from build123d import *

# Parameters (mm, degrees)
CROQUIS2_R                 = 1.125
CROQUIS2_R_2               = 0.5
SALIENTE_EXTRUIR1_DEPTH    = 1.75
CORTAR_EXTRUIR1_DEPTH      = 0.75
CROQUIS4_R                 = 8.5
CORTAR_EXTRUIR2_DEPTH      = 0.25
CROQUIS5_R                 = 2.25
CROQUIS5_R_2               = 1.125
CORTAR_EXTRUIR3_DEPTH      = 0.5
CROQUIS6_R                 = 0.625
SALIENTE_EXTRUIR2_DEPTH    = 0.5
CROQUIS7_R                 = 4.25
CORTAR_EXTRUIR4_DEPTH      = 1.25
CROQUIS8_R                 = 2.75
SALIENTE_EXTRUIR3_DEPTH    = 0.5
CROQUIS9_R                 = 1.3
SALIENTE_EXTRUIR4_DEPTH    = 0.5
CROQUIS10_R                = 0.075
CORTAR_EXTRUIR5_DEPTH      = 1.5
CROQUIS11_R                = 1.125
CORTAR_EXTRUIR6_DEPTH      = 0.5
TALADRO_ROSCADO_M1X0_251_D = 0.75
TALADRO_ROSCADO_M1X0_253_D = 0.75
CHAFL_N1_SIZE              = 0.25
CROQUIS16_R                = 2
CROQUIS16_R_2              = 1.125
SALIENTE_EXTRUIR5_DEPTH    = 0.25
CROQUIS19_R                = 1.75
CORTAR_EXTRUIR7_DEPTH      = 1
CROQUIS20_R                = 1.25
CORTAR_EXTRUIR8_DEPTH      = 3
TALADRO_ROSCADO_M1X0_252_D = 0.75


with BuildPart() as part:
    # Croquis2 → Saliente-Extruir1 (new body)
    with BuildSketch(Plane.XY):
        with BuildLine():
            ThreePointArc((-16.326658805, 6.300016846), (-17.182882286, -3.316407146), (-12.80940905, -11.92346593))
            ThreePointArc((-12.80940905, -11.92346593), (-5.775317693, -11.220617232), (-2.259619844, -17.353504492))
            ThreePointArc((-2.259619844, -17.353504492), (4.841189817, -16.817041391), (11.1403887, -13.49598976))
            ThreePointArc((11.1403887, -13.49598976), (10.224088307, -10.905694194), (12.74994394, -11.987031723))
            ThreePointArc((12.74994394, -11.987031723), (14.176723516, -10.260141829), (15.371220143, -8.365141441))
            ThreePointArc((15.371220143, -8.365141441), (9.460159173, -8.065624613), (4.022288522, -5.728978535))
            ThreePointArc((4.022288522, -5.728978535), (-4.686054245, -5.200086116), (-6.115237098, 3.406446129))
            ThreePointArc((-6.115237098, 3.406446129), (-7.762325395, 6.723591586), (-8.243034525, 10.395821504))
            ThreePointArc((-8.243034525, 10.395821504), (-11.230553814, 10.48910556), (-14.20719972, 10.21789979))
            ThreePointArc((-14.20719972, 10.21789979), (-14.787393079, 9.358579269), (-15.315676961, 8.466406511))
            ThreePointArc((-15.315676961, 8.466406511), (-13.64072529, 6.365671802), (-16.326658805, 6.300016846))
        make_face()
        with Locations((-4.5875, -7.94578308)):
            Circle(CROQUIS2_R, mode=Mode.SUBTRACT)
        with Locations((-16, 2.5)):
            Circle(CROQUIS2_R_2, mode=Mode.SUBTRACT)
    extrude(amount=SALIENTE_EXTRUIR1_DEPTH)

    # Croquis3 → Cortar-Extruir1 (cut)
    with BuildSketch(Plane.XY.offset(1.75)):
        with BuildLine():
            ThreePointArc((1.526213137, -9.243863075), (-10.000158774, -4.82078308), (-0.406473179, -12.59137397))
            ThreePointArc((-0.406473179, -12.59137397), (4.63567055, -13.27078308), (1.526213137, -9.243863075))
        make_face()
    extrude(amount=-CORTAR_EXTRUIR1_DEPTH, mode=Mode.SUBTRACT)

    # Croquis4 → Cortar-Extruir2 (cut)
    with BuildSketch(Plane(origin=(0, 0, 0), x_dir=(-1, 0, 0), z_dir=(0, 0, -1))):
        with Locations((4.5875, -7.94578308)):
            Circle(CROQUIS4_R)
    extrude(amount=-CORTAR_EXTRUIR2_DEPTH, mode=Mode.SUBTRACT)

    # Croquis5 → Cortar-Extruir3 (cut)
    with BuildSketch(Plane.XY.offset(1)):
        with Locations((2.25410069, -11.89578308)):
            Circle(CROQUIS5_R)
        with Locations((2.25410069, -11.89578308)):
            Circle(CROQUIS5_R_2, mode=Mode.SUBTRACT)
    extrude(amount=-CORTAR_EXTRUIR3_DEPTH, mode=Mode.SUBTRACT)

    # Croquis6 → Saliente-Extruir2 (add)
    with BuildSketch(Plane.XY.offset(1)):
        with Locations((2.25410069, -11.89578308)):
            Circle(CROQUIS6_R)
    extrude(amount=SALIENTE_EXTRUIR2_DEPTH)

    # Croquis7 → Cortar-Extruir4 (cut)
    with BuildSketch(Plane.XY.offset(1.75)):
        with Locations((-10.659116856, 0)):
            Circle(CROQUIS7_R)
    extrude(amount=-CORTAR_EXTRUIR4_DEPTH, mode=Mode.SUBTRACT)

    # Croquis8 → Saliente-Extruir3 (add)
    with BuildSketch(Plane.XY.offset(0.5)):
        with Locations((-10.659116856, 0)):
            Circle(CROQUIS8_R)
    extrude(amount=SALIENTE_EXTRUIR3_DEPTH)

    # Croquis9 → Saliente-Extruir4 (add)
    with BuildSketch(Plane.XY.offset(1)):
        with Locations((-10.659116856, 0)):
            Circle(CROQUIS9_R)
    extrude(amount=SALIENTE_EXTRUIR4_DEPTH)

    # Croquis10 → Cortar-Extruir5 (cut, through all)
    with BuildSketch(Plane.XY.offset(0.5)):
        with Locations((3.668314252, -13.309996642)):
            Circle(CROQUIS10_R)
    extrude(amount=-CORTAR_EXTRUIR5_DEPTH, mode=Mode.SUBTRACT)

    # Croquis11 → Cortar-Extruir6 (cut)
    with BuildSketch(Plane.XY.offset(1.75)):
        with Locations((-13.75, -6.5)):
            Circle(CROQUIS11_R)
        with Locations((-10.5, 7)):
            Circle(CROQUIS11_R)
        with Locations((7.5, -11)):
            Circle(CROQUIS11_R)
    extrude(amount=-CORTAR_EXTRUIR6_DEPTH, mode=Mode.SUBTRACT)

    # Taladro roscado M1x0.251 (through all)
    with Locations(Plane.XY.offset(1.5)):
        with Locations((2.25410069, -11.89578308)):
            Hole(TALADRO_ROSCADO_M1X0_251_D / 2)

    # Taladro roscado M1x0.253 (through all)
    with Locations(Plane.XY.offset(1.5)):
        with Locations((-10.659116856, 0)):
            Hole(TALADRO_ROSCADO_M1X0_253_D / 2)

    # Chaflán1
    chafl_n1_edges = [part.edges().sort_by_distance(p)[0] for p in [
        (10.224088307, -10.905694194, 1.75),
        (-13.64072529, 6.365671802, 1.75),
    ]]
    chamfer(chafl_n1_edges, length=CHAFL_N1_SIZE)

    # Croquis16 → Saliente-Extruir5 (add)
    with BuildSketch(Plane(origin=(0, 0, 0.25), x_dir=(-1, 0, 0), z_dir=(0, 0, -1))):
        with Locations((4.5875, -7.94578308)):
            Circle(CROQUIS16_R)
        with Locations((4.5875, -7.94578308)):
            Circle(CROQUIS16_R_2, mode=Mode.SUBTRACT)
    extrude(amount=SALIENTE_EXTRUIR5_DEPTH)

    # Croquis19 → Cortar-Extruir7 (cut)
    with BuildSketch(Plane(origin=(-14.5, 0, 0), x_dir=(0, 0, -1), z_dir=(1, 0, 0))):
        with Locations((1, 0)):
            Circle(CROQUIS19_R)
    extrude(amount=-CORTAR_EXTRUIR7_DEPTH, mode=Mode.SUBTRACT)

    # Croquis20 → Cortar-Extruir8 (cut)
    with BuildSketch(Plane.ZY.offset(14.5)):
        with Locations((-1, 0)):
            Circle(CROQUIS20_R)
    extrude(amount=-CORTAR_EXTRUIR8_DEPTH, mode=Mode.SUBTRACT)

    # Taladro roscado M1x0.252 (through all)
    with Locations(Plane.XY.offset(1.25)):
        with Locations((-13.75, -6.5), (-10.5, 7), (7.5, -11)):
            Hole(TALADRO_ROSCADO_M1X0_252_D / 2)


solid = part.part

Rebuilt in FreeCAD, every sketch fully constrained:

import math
import FreeCAD as App
import Part
import Sketcher

V = App.Vector


def edges_at(feature, points):
    """Names of the edges that pass closest to the given points."""
    edges = feature.Shape.Edges
    near = lambda p: min(range(len(edges)), key=lambda i: edges[i].distToShape(Part.Vertex(*p))[0])
    return sorted({f"Edge{near(p) + 1}" for p in points})

doc = App.newDocument("Part")
body = doc.addObject("PartDesign::Body", "Body")

# Sketch on XY plane
sketch1 = body.newObject("Sketcher::SketchObject", "Sketch")
sketch1.AttachmentSupport = (doc.getObject("XY_Plane"), [""])
sketch1.MapMode = "FlatFace"
sketch1.addGeometry(Part.ArcOfCircle(Part.Circle(V(0, 0, 0), V(0, 0, 1), 17.5), math.radians(159), math.radians(223)), False)
sketch1.addGeometry(Part.ArcOfCircle(Part.Circle(V(-8.8, -17, 0), V(0, 0, 1), 6.5), math.radians(-3), math.radians(129)), False)
sketch1.addGeometry(Part.ArcOfCircle(Part.Circle(V(0, 0, 0), V(0, 0, 1), 17.5), math.radians(-97), math.radians(-50)), False)
sketch1.addGeometry(Part.ArcOfCircle(Part.Circle(V(11.2, -12, 0), V(0, 0, 1), 1.5), math.radians(0), math.radians(266)), False)
sketch1.addGeometry(Part.ArcOfCircle(Part.Circle(V(0, 0, 0), V(0, 0, 1), 17.5), math.radians(-43.23), math.radians(-28.56)), False)
sketch1.addGeometry(Part.ArcOfCircle(Part.Circle(V(13.2, 8.2, 0), V(0, 0, 1), 16.7), math.radians(-123), math.radians(-83)), False)
sketch1.addGeometry(Part.ArcOfCircle(Part.Circle(V(0, 0, 0), V(0, 0, 1), 7), math.radians(151), math.radians(305)), False)
sketch1.addGeometry(Part.ArcOfCircle(Part.Circle(V(3, 10, 0), V(0, 0, 1), 11.2), math.radians(178), math.radians(216)), False)
sketch1.addGeometry(Part.ArcOfCircle(Part.Circle(V(-10.5, -14, 0), V(0, 0, 1), 24.5), math.radians(84.71), math.radians(98.7)), False)
sketch1.addGeometry(Part.ArcOfCircle(Part.Circle(V(0, 0, 0), V(0, 0, 1), 17.5), math.radians(144.28), math.radians(151.07)), False)
sketch1.addGeometry(Part.ArcOfCircle(Part.Circle(V(-15, 7, 0), V(0, 0, 1), 1.5), math.radians(-152), math.radians(102)), False)
sketch1.addGeometry(Part.Circle(V(-4.6, -7.9, 0), V(0, 0, 1), 1.1), False)
sketch1.addGeometry(Part.Circle(V(-16, 2.5, 0), V(0, 0, 1), 0.5), False)
sketch1.addConstraint(Sketcher.Constraint("Coincident", 0, 2, 1, 2))
sketch1.addConstraint(Sketcher.Constraint("Coincident", 1, 1, 2, 1))
sketch1.addConstraint(Sketcher.Constraint("Coincident", 2, 2, 3, 2))
sketch1.addConstraint(Sketcher.Constraint("Coincident", 3, 1, 4, 1))
sketch1.addConstraint(Sketcher.Constraint("Coincident", 4, 2, 5, 2))
sketch1.addConstraint(Sketcher.Constraint("Coincident", 5, 1, 6, 2))
sketch1.addConstraint(Sketcher.Constraint("Coincident", 6, 1, 7, 2))
sketch1.addConstraint(Sketcher.Constraint("Coincident", 7, 1, 8, 1))
sketch1.addConstraint(Sketcher.Constraint("Coincident", 8, 2, 9, 1))
sketch1.addConstraint(Sketcher.Constraint("Coincident", 9, 2, 10, 2))
sketch1.addConstraint(Sketcher.Constraint("Coincident", 10, 1, 0, 1))
sketch1.addConstraint(Sketcher.Constraint("Coincident", 0, 3, -1, 1))
sketch1.addConstraint(Sketcher.Constraint("Coincident", 2, 3, -1, 1))
sketch1.addConstraint(Sketcher.Constraint("Coincident", 4, 3, -1, 1))
sketch1.addConstraint(Sketcher.Constraint("Coincident", 6, 3, -1, 1))
sketch1.addConstraint(Sketcher.Constraint("Coincident", 9, 3, -1, 1))
sketch1.addConstraint(Sketcher.Constraint("Equal", 0, 2))
sketch1.addConstraint(Sketcher.Constraint("Equal", 2, 4))
sketch1.addConstraint(Sketcher.Constraint("Equal", 4, 9))
sketch1.addConstraint(Sketcher.Constraint("Equal", 3, 10))
sketch1.addConstraint(Sketcher.Constraint("Diameter", 12, 1.0))
sketch1.addConstraint(Sketcher.Constraint("Radius", 6, 7.0))
sketch1.addConstraint(Sketcher.Constraint("Radius", 0, 17.5))
sketch1.addConstraint(Sketcher.Constraint("Radius", 1, 6.5))
sketch1.addConstraint(Sketcher.Constraint("Radius", 3, 1.5))
sketch1.addConstraint(Sketcher.Constraint("Radius", 8, 24.5))
sketch1.addConstraint(Sketcher.Constraint("Diameter", 11, 2.25))
sketch1.addConstraint(Sketcher.Constraint("Radius", 5, 16.75))
sketch1.addConstraint(Sketcher.Constraint("Radius", 7, 11.25))
sketch1.addConstraint(Sketcher.Constraint("DistanceY", 1, 3, -1, 1, 17.0))
sketch1.addConstraint(Sketcher.Constraint("DistanceY", 3, 3, -1, 1, 12.0))
sketch1.addConstraint(Sketcher.Constraint("DistanceX", -1, 1, 7, 3, 3.0))
sketch1.addConstraint(Sketcher.Constraint("DistanceY", -1, 1, 7, 3, 10.0))
sketch1.addConstraint(Sketcher.Constraint("DistanceY", 8, 3, -1, 1, 14.0))
sketch1.addConstraint(Sketcher.Constraint("DistanceX", 10, 3, -1, 1, 15.0))
sketch1.addConstraint(Sketcher.Constraint("DistanceY", -1, 1, 10, 3, 7.0))
sketch1.addConstraint(Sketcher.Constraint("DistanceX", 12, 3, -1, 1, 16.0))
sketch1.addConstraint(Sketcher.Constraint("DistanceX", 1, 3, 3, 3, 20.0))
sketch1.addConstraint(Sketcher.Constraint("DistanceX", 3, 3, 5, 3, 2.0))
sketch1.addConstraint(Sketcher.Constraint("DistanceX", 8, 3, -1, 1, 10.5))
sketch1.addConstraint(Sketcher.Constraint("DistanceY", -1, 1, 12, 3, 2.5))
sketch1.addConstraint(Sketcher.Constraint("DistanceX", 1, 3, -1, 1, 8.75))
sketch1.addConstraint(Sketcher.Constraint("DistanceY", -1, 1, 5, 3, 8.25))
sketch1.addConstraint(Sketcher.Constraint("DistanceX", 11, 3, -1, 1, 4.5875))
sketch1.addConstraint(Sketcher.Constraint("DistanceY", 1, 1, 11, 3, 9.407721))
pad1 = body.newObject("PartDesign::Pad", "Pad")
pad1.Profile = sketch1
pad1.Length = 1.75

# Sketch on XY plane
sketch2 = body.newObject("Sketcher::SketchObject", "Sketch001")
sketch2.AttachmentSupport = (doc.getObject("XY_Plane"), [""])
sketch2.MapMode = "FlatFace"
sketch2.AttachmentOffset = App.Placement(V(0, 0, 1.75), App.Rotation())
sketch2.addGeometry(Part.ArcOfCircle(Part.Circle(V(-4.6, -7.9, 0), V(0, 0, 1), 6.2), math.radians(-12), math.radians(312)), False)
sketch2.addGeometry(Part.ArcOfCircle(Part.Circle(V(2.3, -11.9, 0), V(0, 0, 1), 2.8), math.radians(-165), math.radians(105)), False)
sketch2.addConstraint(Sketcher.Constraint("Coincident", 0, 1, 1, 2))
sketch2.addConstraint(Sketcher.Constraint("Coincident", 1, 1, 0, 2))
sketch2.addConstraint(Sketcher.Constraint("Radius", 0, 6.25))
sketch2.addConstraint(Sketcher.Constraint("Radius", 1, 2.75))
sketch2.addConstraint(Sketcher.Constraint("DistanceY", 1, 3, 0, 3, 3.95))
sketch2.addConstraint(Sketcher.Constraint("DistanceX", 0, 3, -1, 1, 4.5875))
sketch2.addConstraint(Sketcher.Constraint("DistanceX", -1, 1, 1, 3, 2.254101))
sketch2.addConstraint(Sketcher.Constraint("DistanceY", 0, 3, -1, 1, 7.945783))
pocket1 = body.newObject("PartDesign::Pocket", "Pocket")
pocket1.Profile = sketch2
pocket1.Length = 0.75

# Sketch on XY plane
sketch3 = body.newObject("Sketcher::SketchObject", "Sketch002")
sketch3.AttachmentSupport = (doc.getObject("XY_Plane"), [""])
sketch3.MapMode = "FlatFace"
sketch3.addGeometry(Part.Circle(V(-5, -8, 0), V(0, 0, 1), 8), False)
sketch3.addConstraint(Sketcher.Constraint("Diameter", 0, 17.0))
sketch3.addConstraint(Sketcher.Constraint("DistanceX", 0, 3, -1, 1, 4.5875))
sketch3.addConstraint(Sketcher.Constraint("DistanceY", 0, 3, -1, 1, 7.945783))
pocket2 = body.newObject("PartDesign::Pocket", "Pocket001")
pocket2.Profile = sketch3
pocket2.Length = 0.25
pocket2.Reversed = True

# Sketch on XY plane
sketch4 = body.newObject("Sketcher::SketchObject", "Sketch003")
sketch4.AttachmentSupport = (doc.getObject("XY_Plane"), [""])
sketch4.MapMode = "FlatFace"
sketch4.AttachmentOffset = App.Placement(V(0, 0, 1), App.Rotation())
sketch4.addGeometry(Part.Circle(V(2.3, -11.9, 0), V(0, 0, 1), 2.2), False)
sketch4.addGeometry(Part.Circle(V(2.3, -11.9, 0), V(0, 0, 1), 1.1), False)
sketch4.addConstraint(Sketcher.Constraint("Coincident", 1, 3, 0, 3))
sketch4.addConstraint(Sketcher.Constraint("Diameter", 0, 4.5))
sketch4.addConstraint(Sketcher.Constraint("Diameter", 1, 2.25))
sketch4.addConstraint(Sketcher.Constraint("DistanceX", -1, 1, 0, 3, 2.254101))
sketch4.addConstraint(Sketcher.Constraint("DistanceY", 0, 3, -1, 1, 11.895783))
pocket3 = body.newObject("PartDesign::Pocket", "Pocket002")
pocket3.Profile = sketch4
pocket3.Length = 0.5

# Sketch on XY plane
sketch5 = body.newObject("Sketcher::SketchObject", "Sketch004")
sketch5.AttachmentSupport = (doc.getObject("XY_Plane"), [""])
sketch5.MapMode = "FlatFace"
sketch5.AttachmentOffset = App.Placement(V(0, 0, 1), App.Rotation())
sketch5.addGeometry(Part.Circle(V(2.3, -11.9, 0), V(0, 0, 1), 0.6), False)
sketch5.addConstraint(Sketcher.Constraint("Diameter", 0, 1.25))
sketch5.addConstraint(Sketcher.Constraint("DistanceX", -1, 1, 0, 3, 2.254101))
sketch5.addConstraint(Sketcher.Constraint("DistanceY", 0, 3, -1, 1, 11.895783))
pad2 = body.newObject("PartDesign::Pad", "Pad001")
pad2.Profile = sketch5
pad2.Length = 0.5

# Sketch on XY plane
sketch6 = body.newObject("Sketcher::SketchObject", "Sketch005")
sketch6.AttachmentSupport = (doc.getObject("XY_Plane"), [""])
sketch6.MapMode = "FlatFace"
sketch6.AttachmentOffset = App.Placement(V(0, 0, 1.75), App.Rotation())
sketch6.addGeometry(Part.Circle(V(-10.7, 0, 0), V(0, 0, 1), 4.2), False)
sketch6.addConstraint(Sketcher.Constraint("PointOnObject", 0, 3, -1))
sketch6.addConstraint(Sketcher.Constraint("Diameter", 0, 8.5))
sketch6.addConstraint(Sketcher.Constraint("DistanceX", 0, 3, -1, 1, 10.659117))
pocket4 = body.newObject("PartDesign::Pocket", "Pocket003")
pocket4.Profile = sketch6
pocket4.Length = 1.25

# Sketch on XY plane
sketch7 = body.newObject("Sketcher::SketchObject", "Sketch006")
sketch7.AttachmentSupport = (doc.getObject("XY_Plane"), [""])
sketch7.MapMode = "FlatFace"
sketch7.AttachmentOffset = App.Placement(V(0, 0, 0.5), App.Rotation())
sketch7.addGeometry(Part.Circle(V(-10.7, 0, 0), V(0, 0, 1), 2.8), False)
sketch7.addConstraint(Sketcher.Constraint("PointOnObject", 0, 3, -1))
sketch7.addConstraint(Sketcher.Constraint("Diameter", 0, 5.5))
sketch7.addConstraint(Sketcher.Constraint("DistanceX", 0, 3, -1, 1, 10.659117))
pad3 = body.newObject("PartDesign::Pad", "Pad002")
pad3.Profile = sketch7
pad3.Length = 0.5

# Sketch on XY plane
sketch8 = body.newObject("Sketcher::SketchObject", "Sketch007")
sketch8.AttachmentSupport = (doc.getObject("XY_Plane"), [""])
sketch8.MapMode = "FlatFace"
sketch8.AttachmentOffset = App.Placement(V(0, 0, 1), App.Rotation())
sketch8.addGeometry(Part.Circle(V(-10.7, 0, 0), V(0, 0, 1), 1.3), False)
sketch8.addConstraint(Sketcher.Constraint("PointOnObject", 0, 3, -1))
sketch8.addConstraint(Sketcher.Constraint("Diameter", 0, 2.6))
sketch8.addConstraint(Sketcher.Constraint("DistanceX", 0, 3, -1, 1, 10.659117))
pad4 = body.newObject("PartDesign::Pad", "Pad003")
pad4.Profile = sketch8
pad4.Length = 0.5

# Sketch on XY plane
sketch9 = body.newObject("Sketcher::SketchObject", "Sketch008")
sketch9.AttachmentSupport = (doc.getObject("XY_Plane"), [""])
sketch9.MapMode = "FlatFace"
sketch9.AttachmentOffset = App.Placement(V(0, 0, 0.5), App.Rotation())
sketch9.addGeometry(Part.Circle(V(3.67, -13.31, 0), V(0, 0, 1), 0.07), False)
sketch9.addConstraint(Sketcher.Constraint("Diameter", 0, 0.15))
sketch9.addConstraint(Sketcher.Constraint("DistanceX", -1, 1, 0, 3, 3.668314))
sketch9.addConstraint(Sketcher.Constraint("DistanceY", 0, 3, -1, 1, 13.309997))
pocket5 = body.newObject("PartDesign::Pocket", "Pocket004")
pocket5.Profile = sketch9
pocket5.Type = "ThroughAll"

# Sketch on XY plane
sketch10 = body.newObject("Sketcher::SketchObject", "Sketch009")
sketch10.AttachmentSupport = (doc.getObject("XY_Plane"), [""])
sketch10.MapMode = "FlatFace"
sketch10.AttachmentOffset = App.Placement(V(0, 0, 1.75), App.Rotation())
sketch10.addGeometry(Part.Circle(V(-13.8, -6.5, 0), V(0, 0, 1), 1.1), False)
sketch10.addGeometry(Part.Circle(V(-10.5, 7, 0), V(0, 0, 1), 1.1), False)
sketch10.addGeometry(Part.Circle(V(7.5, -11, 0), V(0, 0, 1), 1.1), False)
sketch10.addConstraint(Sketcher.Constraint("Equal", 0, 1))
sketch10.addConstraint(Sketcher.Constraint("Equal", 1, 2))
sketch10.addConstraint(Sketcher.Constraint("Diameter", 0, 2.25))
sketch10.addConstraint(Sketcher.Constraint("DistanceY", -1, 1, 1, 3, 7.0))
sketch10.addConstraint(Sketcher.Constraint("DistanceY", 2, 3, -1, 1, 11.0))
sketch10.addConstraint(Sketcher.Constraint("DistanceX", 1, 3, 2, 3, 18.0))
sketch10.addConstraint(Sketcher.Constraint("DistanceY", 0, 3, -1, 1, 6.5))
sketch10.addConstraint(Sketcher.Constraint("DistanceX", 1, 3, -1, 1, 10.5))
sketch10.addConstraint(Sketcher.Constraint("DistanceX", 0, 3, -1, 1, 13.75))
pocket6 = body.newObject("PartDesign::Pocket", "Pocket005")
pocket6.Profile = sketch10
pocket6.Length = 0.5

# Sketch on XY plane
sketch11 = body.newObject("Sketcher::SketchObject", "Sketch010")
sketch11.AttachmentSupport = (doc.getObject("XY_Plane"), [""])
sketch11.MapMode = "FlatFace"
sketch11.AttachmentOffset = App.Placement(V(0, 0, 1.5), App.Rotation())
sketch11.addGeometry(Part.Circle(V(2.25, -11.9, 0), V(0, 0, 1), 0.38), False)
sketch11.addConstraint(Sketcher.Constraint("Diameter", 0, 0.75))
sketch11.addConstraint(Sketcher.Constraint("DistanceX", -1, 1, 0, 3, 2.254101))
sketch11.addConstraint(Sketcher.Constraint("DistanceY", 0, 3, -1, 1, 11.895783))
doc.recompute()
hole = body.newObject("PartDesign::Hole", "Hole")
hole.Profile = sketch11
hole.ThreadType = "None"
hole.Diameter = 0.75
hole.DepthType = "ThroughAll"

# Sketch on XY plane
sketch12 = body.newObject("Sketcher::SketchObject", "Sketch011")
sketch12.AttachmentSupport = (doc.getObject("XY_Plane"), [""])
sketch12.MapMode = "FlatFace"
sketch12.AttachmentOffset = App.Placement(V(0, 0, 1.5), App.Rotation())
sketch12.addGeometry(Part.Circle(V(-10.66, 0, 0), V(0, 0, 1), 0.38), False)
sketch12.addConstraint(Sketcher.Constraint("PointOnObject", 0, 3, -1))
sketch12.addConstraint(Sketcher.Constraint("Diameter", 0, 0.75))
sketch12.addConstraint(Sketcher.Constraint("DistanceX", 0, 3, -1, 1, 10.659117))
doc.recompute()
hole2 = body.newObject("PartDesign::Hole", "Hole001")
hole2.Profile = sketch12
hole2.ThreadType = "None"
hole2.Diameter = 0.75
hole2.DepthType = "ThroughAll"
doc.recompute()

chamfer = body.newObject("PartDesign::Chamfer", "Chamfer")
chamfer.Base = (hole2, edges_at(hole2, [(10.224, -10.906, 1.75), (-13.641, 6.366, 1.75)]))
chamfer.Size = 0.25

# Sketch on XY plane
sketch13 = body.newObject("Sketcher::SketchObject", "Sketch012")
sketch13.AttachmentSupport = (doc.getObject("XY_Plane"), [""])
sketch13.MapMode = "FlatFace"
sketch13.AttachmentOffset = App.Placement(V(0, 0, 0.25), App.Rotation())
sketch13.addGeometry(Part.Circle(V(-4.6, -7.9, 0), V(0, 0, 1), 2), False)
sketch13.addGeometry(Part.Circle(V(-4.6, -7.9, 0), V(0, 0, 1), 1.1), False)
sketch13.addConstraint(Sketcher.Constraint("Coincident", 1, 3, 0, 3))
sketch13.addConstraint(Sketcher.Constraint("Diameter", 0, 4.0))
sketch13.addConstraint(Sketcher.Constraint("Diameter", 1, 2.25))
sketch13.addConstraint(Sketcher.Constraint("DistanceX", 0, 3, -1, 1, 4.5875))
sketch13.addConstraint(Sketcher.Constraint("DistanceY", 0, 3, -1, 1, 7.945783))
pad5 = body.newObject("PartDesign::Pad", "Pad004")
pad5.Profile = sketch13
pad5.Length = 0.25
pad5.Reversed = True

# Sketch on YZ plane
sketch14 = body.newObject("Sketcher::SketchObject", "Sketch013")
sketch14.AttachmentSupport = (doc.getObject("YZ_Plane"), [""])
sketch14.MapMode = "FlatFace"
sketch14.AttachmentOffset = App.Placement(V(0, 0, -14.5), App.Rotation())
sketch14.addGeometry(Part.Circle(V(0, -1, 0), V(0, 0, 1), 1.8), False)
sketch14.addConstraint(Sketcher.Constraint("PointOnObject", 0, 3, -2))
sketch14.addConstraint(Sketcher.Constraint("Diameter", 0, 3.5))
sketch14.addConstraint(Sketcher.Constraint("DistanceY", 0, 3, -1, 1, 1.0))
pocket7 = body.newObject("PartDesign::Pocket", "Pocket006")
pocket7.Profile = sketch14
pocket7.Length = 1

# Sketch on YZ plane
sketch15 = body.newObject("Sketcher::SketchObject", "Sketch014")
sketch15.AttachmentSupport = (doc.getObject("YZ_Plane"), [""])
sketch15.MapMode = "FlatFace"
sketch15.AttachmentOffset = App.Placement(V(0, 0, -14.5), App.Rotation())
sketch15.addGeometry(Part.Circle(V(0, -1, 0), V(0, 0, 1), 1.2), False)
sketch15.addConstraint(Sketcher.Constraint("PointOnObject", 0, 3, -2))
sketch15.addConstraint(Sketcher.Constraint("Diameter", 0, 2.5))
sketch15.addConstraint(Sketcher.Constraint("DistanceY", 0, 3, -1, 1, 1.0))
pocket8 = body.newObject("PartDesign::Pocket", "Pocket007")
pocket8.Profile = sketch15
pocket8.Length = 3
pocket8.Reversed = True

# Sketch on XY plane
sketch16 = body.newObject("Sketcher::SketchObject", "Sketch015")
sketch16.AttachmentSupport = (doc.getObject("XY_Plane"), [""])
sketch16.MapMode = "FlatFace"
sketch16.AttachmentOffset = App.Placement(V(0, 0, 1.25), App.Rotation())
sketch16.addGeometry(Part.Circle(V(-13.75, -6.5, 0), V(0, 0, 1), 0.38), False)
sketch16.addGeometry(Part.Circle(V(-10.5, 7, 0), V(0, 0, 1), 0.38), False)
sketch16.addGeometry(Part.Circle(V(7.5, -11, 0), V(0, 0, 1), 0.38), False)
sketch16.addConstraint(Sketcher.Constraint("Equal", 0, 1))
sketch16.addConstraint(Sketcher.Constraint("Equal", 1, 2))
sketch16.addConstraint(Sketcher.Constraint("Diameter", 0, 0.75))
sketch16.addConstraint(Sketcher.Constraint("DistanceY", -1, 1, 1, 3, 7.0))
sketch16.addConstraint(Sketcher.Constraint("DistanceY", 2, 3, -1, 1, 11.0))
sketch16.addConstraint(Sketcher.Constraint("DistanceX", 1, 3, 2, 3, 18.0))
sketch16.addConstraint(Sketcher.Constraint("DistanceY", 0, 3, -1, 1, 6.5))
sketch16.addConstraint(Sketcher.Constraint("DistanceX", 1, 3, -1, 1, 10.5))
sketch16.addConstraint(Sketcher.Constraint("DistanceX", 0, 3, -1, 1, 13.75))
doc.recompute()
hole3 = body.newObject("PartDesign::Hole", "Hole002")
hole3.Profile = sketch16
hole3.ThreadType = "None"
hole3.Diameter = 0.75
hole3.DepthType = "ThroughAll"

doc.recompute()
